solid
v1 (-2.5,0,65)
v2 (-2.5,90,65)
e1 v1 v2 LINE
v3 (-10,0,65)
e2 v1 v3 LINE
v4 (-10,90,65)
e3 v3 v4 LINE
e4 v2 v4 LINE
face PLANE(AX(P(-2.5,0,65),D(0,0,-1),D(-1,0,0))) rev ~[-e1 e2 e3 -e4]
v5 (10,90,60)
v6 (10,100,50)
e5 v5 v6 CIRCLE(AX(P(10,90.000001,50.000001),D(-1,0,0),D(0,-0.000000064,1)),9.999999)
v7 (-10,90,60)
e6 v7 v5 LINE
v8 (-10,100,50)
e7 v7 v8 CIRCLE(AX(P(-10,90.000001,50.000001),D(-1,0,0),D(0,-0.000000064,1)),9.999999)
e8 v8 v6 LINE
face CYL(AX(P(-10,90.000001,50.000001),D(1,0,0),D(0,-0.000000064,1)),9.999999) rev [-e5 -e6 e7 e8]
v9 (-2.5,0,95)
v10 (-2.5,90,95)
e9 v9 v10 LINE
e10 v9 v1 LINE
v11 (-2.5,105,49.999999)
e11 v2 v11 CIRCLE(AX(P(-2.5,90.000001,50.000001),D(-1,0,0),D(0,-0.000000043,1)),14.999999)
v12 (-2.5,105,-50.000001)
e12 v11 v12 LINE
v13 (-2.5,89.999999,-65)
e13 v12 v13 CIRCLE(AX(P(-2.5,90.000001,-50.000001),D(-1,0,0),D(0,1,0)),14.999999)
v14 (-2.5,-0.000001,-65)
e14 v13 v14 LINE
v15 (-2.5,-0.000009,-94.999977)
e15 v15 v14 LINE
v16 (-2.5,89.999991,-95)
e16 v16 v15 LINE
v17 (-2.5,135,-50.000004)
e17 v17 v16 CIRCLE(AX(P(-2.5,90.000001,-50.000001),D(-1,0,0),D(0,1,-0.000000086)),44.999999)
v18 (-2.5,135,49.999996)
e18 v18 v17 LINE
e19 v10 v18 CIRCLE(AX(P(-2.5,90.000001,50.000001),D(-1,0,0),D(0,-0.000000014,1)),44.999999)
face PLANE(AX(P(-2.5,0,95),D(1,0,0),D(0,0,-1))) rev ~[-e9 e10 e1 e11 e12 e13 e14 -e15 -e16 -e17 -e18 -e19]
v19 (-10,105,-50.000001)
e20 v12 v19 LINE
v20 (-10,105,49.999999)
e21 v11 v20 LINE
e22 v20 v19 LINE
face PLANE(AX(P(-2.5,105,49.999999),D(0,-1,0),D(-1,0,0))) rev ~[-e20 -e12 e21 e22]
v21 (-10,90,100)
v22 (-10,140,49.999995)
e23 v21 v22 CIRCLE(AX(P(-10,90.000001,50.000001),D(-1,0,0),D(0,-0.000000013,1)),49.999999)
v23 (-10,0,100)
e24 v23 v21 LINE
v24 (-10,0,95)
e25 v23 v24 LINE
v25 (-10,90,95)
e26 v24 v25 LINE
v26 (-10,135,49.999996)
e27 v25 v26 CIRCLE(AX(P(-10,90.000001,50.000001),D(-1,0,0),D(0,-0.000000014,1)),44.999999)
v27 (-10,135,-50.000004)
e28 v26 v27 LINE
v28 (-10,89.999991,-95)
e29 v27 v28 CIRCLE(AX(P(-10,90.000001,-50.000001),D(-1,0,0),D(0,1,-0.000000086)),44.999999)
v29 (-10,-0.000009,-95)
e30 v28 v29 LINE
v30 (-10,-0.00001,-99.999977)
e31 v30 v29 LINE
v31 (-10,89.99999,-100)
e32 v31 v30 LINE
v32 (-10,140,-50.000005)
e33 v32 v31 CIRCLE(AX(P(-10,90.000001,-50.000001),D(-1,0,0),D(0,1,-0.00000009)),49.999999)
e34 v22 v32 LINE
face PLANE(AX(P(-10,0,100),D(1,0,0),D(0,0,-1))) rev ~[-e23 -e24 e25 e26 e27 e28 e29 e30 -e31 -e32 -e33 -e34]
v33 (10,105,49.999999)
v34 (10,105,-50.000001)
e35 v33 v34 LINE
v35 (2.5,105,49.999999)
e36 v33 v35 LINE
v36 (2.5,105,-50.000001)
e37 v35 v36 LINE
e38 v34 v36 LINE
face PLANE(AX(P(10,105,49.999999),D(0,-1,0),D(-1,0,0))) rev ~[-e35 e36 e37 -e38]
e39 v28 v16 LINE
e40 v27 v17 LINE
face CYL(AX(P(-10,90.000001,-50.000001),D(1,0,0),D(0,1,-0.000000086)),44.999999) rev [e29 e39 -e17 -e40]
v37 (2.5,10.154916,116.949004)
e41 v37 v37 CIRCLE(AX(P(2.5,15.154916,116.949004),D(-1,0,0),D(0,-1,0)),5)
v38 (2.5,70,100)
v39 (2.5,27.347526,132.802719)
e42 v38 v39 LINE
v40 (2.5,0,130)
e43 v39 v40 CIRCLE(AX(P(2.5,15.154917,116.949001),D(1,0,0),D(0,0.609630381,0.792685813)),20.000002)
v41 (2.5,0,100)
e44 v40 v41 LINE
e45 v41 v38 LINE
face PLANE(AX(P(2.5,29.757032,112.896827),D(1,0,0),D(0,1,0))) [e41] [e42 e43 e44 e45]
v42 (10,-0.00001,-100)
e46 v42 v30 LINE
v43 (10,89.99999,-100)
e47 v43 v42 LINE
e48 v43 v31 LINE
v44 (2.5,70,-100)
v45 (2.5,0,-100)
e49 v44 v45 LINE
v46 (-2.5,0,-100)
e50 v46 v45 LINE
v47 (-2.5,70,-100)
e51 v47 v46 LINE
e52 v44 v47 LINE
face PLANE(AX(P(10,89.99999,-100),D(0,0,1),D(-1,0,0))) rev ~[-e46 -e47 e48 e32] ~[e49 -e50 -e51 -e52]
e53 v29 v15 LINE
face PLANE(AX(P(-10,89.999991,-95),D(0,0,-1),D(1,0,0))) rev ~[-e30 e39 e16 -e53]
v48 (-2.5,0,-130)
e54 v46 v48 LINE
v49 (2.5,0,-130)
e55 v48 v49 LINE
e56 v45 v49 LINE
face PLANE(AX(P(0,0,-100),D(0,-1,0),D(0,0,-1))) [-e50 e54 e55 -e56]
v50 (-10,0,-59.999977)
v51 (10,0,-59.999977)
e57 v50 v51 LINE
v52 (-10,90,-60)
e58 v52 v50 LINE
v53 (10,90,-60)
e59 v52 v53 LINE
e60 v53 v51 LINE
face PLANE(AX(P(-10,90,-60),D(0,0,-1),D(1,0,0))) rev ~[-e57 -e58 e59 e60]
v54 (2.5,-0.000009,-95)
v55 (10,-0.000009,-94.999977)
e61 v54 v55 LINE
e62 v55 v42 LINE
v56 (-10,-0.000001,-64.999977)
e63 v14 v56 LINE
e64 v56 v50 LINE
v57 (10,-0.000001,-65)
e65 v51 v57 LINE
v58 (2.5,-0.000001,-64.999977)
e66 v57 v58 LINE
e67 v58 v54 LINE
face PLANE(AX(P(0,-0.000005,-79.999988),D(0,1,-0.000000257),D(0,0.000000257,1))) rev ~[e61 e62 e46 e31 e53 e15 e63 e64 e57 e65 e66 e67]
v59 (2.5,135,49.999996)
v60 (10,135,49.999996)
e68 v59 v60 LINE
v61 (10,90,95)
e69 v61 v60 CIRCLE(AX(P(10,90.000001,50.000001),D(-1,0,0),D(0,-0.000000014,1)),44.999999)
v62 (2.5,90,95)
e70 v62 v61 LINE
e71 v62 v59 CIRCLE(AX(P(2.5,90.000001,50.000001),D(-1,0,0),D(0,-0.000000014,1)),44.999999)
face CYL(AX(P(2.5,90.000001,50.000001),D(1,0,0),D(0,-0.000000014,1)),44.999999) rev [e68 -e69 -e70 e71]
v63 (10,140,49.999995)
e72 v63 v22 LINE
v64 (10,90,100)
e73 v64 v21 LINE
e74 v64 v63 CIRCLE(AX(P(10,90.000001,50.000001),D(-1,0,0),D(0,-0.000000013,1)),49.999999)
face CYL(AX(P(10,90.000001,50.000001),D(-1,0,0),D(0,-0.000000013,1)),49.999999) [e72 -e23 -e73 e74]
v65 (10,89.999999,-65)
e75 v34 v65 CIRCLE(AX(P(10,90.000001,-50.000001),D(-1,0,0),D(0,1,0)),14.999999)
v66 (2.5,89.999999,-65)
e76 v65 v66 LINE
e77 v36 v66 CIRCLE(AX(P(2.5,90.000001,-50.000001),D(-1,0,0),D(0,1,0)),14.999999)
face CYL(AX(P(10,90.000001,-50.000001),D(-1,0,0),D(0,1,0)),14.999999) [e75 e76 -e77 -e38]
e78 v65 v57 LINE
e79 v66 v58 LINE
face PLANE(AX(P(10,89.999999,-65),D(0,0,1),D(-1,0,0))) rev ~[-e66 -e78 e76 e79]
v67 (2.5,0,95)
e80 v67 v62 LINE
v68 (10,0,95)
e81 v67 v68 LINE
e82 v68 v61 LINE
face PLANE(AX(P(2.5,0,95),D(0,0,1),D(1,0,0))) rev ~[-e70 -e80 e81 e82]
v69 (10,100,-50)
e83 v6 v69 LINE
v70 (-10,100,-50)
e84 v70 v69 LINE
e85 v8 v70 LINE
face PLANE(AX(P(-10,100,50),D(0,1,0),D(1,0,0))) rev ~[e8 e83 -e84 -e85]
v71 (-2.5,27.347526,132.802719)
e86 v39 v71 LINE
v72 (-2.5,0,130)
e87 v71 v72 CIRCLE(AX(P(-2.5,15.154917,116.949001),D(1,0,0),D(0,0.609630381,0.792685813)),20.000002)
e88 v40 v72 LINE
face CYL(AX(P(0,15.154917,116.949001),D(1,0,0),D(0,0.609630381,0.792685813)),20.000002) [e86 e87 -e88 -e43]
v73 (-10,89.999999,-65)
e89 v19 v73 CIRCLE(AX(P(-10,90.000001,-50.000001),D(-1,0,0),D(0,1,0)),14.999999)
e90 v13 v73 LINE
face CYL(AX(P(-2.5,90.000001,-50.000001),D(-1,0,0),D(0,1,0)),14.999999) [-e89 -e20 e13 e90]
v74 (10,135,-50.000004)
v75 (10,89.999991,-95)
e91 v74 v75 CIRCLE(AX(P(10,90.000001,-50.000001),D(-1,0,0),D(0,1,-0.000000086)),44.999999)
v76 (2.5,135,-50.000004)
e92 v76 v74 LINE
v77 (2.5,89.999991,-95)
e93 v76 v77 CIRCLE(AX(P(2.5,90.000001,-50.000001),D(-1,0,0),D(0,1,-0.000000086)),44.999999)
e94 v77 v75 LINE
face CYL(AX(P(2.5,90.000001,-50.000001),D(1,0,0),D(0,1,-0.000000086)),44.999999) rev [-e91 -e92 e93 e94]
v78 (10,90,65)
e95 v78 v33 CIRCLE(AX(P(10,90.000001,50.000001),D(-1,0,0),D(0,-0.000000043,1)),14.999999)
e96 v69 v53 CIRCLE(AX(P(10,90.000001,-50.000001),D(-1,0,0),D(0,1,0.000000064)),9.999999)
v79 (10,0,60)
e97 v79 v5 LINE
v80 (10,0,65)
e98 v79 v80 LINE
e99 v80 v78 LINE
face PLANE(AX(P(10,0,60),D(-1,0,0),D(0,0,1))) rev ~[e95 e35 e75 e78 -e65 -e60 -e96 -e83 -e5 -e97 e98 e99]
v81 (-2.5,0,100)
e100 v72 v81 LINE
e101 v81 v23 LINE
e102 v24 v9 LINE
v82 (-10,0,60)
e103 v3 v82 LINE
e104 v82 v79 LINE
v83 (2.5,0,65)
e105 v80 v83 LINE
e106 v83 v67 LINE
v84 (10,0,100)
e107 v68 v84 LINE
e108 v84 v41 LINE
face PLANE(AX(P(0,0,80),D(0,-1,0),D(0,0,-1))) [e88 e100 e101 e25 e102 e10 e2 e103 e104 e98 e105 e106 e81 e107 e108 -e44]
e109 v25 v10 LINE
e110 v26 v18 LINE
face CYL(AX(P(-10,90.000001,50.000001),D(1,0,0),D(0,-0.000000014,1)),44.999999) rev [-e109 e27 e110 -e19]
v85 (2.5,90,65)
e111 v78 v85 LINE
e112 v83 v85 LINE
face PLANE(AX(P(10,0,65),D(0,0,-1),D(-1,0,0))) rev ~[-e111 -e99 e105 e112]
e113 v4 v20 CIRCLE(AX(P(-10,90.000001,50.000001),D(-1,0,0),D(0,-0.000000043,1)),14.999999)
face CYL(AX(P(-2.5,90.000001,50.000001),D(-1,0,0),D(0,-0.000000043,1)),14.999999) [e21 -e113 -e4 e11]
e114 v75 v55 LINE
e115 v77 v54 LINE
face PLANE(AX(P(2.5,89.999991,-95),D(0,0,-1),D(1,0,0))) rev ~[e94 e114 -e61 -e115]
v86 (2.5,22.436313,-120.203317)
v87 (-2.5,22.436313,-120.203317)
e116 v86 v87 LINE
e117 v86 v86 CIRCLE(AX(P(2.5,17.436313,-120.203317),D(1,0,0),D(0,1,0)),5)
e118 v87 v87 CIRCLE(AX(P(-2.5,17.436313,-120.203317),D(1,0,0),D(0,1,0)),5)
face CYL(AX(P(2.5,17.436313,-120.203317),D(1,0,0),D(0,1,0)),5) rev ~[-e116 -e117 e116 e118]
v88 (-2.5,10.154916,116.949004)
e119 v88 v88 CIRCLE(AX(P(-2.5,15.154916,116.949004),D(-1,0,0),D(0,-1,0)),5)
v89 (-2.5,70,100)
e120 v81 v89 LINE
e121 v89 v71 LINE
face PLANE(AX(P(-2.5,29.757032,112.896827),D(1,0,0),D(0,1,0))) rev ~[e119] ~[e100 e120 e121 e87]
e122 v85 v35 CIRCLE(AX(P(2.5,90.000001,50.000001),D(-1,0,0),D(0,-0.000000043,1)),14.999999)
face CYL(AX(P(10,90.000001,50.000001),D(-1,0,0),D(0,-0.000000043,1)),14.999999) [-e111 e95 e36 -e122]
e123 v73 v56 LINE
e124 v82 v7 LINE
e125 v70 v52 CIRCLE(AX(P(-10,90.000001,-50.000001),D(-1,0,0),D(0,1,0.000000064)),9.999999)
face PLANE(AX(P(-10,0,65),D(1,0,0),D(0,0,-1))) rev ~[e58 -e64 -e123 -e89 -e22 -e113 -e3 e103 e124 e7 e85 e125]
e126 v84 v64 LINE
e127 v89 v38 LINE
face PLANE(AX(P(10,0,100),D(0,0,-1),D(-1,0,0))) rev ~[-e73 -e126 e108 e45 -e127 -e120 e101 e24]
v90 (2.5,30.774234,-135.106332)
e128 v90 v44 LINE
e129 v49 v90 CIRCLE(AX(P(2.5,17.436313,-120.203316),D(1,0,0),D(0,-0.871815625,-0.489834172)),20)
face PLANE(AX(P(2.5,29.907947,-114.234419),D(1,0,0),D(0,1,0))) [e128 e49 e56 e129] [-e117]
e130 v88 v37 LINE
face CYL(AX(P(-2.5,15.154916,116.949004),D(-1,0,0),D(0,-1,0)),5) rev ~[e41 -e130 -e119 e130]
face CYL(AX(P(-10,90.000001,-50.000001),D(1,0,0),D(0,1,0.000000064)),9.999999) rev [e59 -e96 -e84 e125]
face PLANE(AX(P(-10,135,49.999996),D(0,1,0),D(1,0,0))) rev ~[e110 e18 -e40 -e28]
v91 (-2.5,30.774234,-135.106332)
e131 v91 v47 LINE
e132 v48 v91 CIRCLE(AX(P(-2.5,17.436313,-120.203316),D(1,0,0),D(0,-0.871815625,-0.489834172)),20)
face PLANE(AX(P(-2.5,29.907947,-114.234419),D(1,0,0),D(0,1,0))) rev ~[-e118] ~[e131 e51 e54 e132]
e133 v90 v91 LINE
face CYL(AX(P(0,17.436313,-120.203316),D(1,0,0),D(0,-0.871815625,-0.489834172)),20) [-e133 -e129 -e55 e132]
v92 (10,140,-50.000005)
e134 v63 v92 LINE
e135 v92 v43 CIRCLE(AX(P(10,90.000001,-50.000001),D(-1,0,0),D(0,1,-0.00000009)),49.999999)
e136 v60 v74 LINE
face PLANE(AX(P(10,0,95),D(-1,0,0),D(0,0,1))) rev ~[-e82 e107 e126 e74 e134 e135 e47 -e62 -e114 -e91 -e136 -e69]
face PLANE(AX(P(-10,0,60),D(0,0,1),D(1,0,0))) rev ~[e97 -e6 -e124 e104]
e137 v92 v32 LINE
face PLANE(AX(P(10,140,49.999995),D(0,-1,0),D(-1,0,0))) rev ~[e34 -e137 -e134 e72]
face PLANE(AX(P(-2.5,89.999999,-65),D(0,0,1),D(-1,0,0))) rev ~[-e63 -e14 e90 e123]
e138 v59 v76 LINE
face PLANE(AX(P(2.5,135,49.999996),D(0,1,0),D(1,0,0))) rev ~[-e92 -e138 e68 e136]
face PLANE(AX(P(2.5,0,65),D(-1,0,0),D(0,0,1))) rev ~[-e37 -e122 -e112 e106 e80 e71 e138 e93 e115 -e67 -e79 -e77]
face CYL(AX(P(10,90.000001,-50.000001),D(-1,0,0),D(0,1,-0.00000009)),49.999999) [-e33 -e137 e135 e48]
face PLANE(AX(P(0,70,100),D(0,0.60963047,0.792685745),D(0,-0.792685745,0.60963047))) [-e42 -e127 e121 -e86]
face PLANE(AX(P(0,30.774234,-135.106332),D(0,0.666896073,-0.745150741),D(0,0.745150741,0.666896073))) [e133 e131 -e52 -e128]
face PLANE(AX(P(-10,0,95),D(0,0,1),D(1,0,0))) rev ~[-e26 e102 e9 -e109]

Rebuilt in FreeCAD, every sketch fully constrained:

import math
import FreeCAD as App
import Part
import Sketcher
from FreeCAD import Vector
Q = App.Units.Quantity


def add_polygon(sketch, points):
    """Adds a closed chain of lines whose ends are joined by coincident constraints."""
    first, n = sketch.GeometryCount, len(points)
    for a, b in zip(points, points[1:] + points[:1]):
        sketch.addGeometry(Part.LineSegment(App.Vector(*a, 0), App.Vector(*b, 0)), False)
    for i in range(n):
        sketch.addConstraint(Sketcher.Constraint("Coincident", first + i, 2, first + (i + 1) % n, 1))

doc = App.newDocument("Part")
body = doc.addObject("PartDesign::Body", "Body")

sketch1 = doc.addObject("Sketcher::SketchObject", "Sketch")
body.addObject(sketch1)
sketch1.AttachmentSupport = (doc.XZ_Plane, [""])
sketch1.MapMode = "FlatFace"
add_polygon(sketch1, [(-10, 60), (10, 60), (10, 65), (2, 65), (2, 95), (10, 95), (10, 100), (-10, 100), (-10, 95), (-2, 95), (-2, 65), (-10, 65)])
sketch1.addConstraint([
    Sketcher.Constraint("Horizontal", 0),
    Sketcher.Constraint("Vertical", 1),
    Sketcher.Constraint("Horizontal", 2),
    Sketcher.Constraint("Vertical", 3),
    Sketcher.Constraint("Horizontal", 4),
    Sketcher.Constraint("Vertical", 5),
    Sketcher.Constraint("Horizontal", 6),
    Sketcher.Constraint("Vertical", 7),
    Sketcher.Constraint("Horizontal", 8),
    Sketcher.Constraint("Vertical", 9),
    Sketcher.Constraint("Horizontal", 10),
    Sketcher.Constraint("Vertical", 11),
    Sketcher.Constraint("Symmetric", 4, 2, 7, 2, -2),
    Sketcher.Constraint("Symmetric", 2, 2, 9, 2, -2),
    Sketcher.Constraint("Vertical", 1, 2, 4, 2),
    Sketcher.Constraint("Vertical", 7, 2, 10, 2),
    Sketcher.Constraint("Equal", 1, 5),
    Sketcher.Constraint("DistanceX", 0, 1, 0, 2, Q("20 mm")),
    Sketcher.Constraint("DistanceY", 1, 1, 1, 2, Q("5 mm")),
    Sketcher.Constraint("DistanceY", 3, 1, 3, 2, Q("30 mm")),
    Sketcher.Constraint("DistanceX", 2, 2, 2, 1, Q("7.5 mm")),
    Sketcher.Constraint("DistanceY", -1, 1, 0, 2, Q("60 mm")),
])

sketch2 = doc.addObject("Sketcher::SketchObject", "Sketch001")
body.addObject(sketch2)
sketch2.AttachmentSupport = (doc.YZ_Plane, [""])
sketch2.MapMode = "FlatFace"
sketch2.addGeometry([
    Part.LineSegment(Vector(0, 60, 0), Vector(90, 60, 0)),
    Part.ArcOfCircle(Part.Circle(Vector(90, 50, 0), Vector(0, 0, 1), 10), math.radians(0), math.radians(90)),
    Part.LineSegment(Vector(100, 50, 0), Vector(100, -50, 0)),
    Part.ArcOfCircle(Part.Circle(Vector(90, -50, 0), Vector(0, 0, 1), 10), math.radians(-90), math.radians(0)),
    Part.LineSegment(Vector(90, -60, 0), Vector(0, -60, 0)),
], False)
sketch2.addConstraint([
    Sketcher.Constraint("Tangent", 0, 2, 1, 2),
    Sketcher.Constraint("Tangent", 1, 1, 2, 1),
    Sketcher.Constraint("Tangent", 2, 2, 3, 2),
    Sketcher.Constraint("Tangent", 3, 1, 4, 1),
    Sketcher.Constraint("Horizontal", 0),
    Sketcher.Constraint("Vertical", 2),
    Sketcher.Constraint("Horizontal", 4),
    Sketcher.Constraint("Equal", 1, 3),
    Sketcher.Constraint("Symmetric", 0, 1, 4, 2, -1, 1),
    Sketcher.Constraint("PointOnObject", 0, 1, -2),
    Sketcher.Constraint("Radius", 1, Q("9.999999 mm")),
    Sketcher.Constraint("DistanceX", 0, 1, 0, 2, Q("90 mm")),
    Sketcher.Constraint("DistanceY", 2, 2, 2, 1, Q("100 mm")),
])
doc.recompute()

additivepipe = doc.addObject("PartDesign::AdditivePipe", "AdditivePipe")
body.addObject(additivepipe)
additivepipe.Profile = sketch1
additivepipe.Spine = (sketch2, ["Edge1", "Edge2", "Edge3", "Edge4", "Edge5"])

sketch3 = doc.addObject("Sketcher::SketchObject", "Sketch002")
body.addObject(sketch3)
sketch3.AttachmentSupport = (doc.YZ_Plane, [""])
sketch3.MapMode = "FlatFace"
sketch3.addGeometry([
    Part.LineSegment(Vector(0, 130, 0), Vector(0, 100, 0)),
    Part.LineSegment(Vector(0, 100, 0), Vector(70, 100, 0)),
    Part.LineSegment(Vector(70, 100, 0), Vector(27, 133, 0)),
    Part.ArcOfCircle(Part.Circle(Vector(15, 117, 0), Vector(0, 0, 1), 20), math.radians(52), math.radians(139)),
], False)
sketch3.addConstraint([
    Sketcher.Constraint("Coincident", 0, 2, 1, 1),
    Sketcher.Constraint("Coincident", 1, 2, 2, 1),
    Sketcher.Constraint("Tangent", 2, 2, 3, 1),
    Sketcher.Constraint("Coincident", 3, 2, 0, 1),
    Sketcher.Constraint("Vertical", 0),
    Sketcher.Constraint("Horizontal", 1),
    Sketcher.Constraint("PointOnObject", 0, 2, -2),
    Sketcher.Constraint("DistanceX", 1, 1, 1, 2, Q("70 mm")),
    Sketcher.Constraint("DistanceY", 0, 2, 0, 1, Q("30 mm")),
    Sketcher.Constraint("DistanceY", -1, 1, 0, 2, Q("100 mm")),
    Sketcher.Constraint("DistanceY", -1, 1, 3, 3, Q("116.949001 mm")),
    Sketcher.Constraint("Radius", 3, Q("20.000002 mm")),
])
pad1 = doc.addObject("PartDesign::Pad", "Pad")
body.addObject(pad1)
pad1.Profile = sketch3
pad1.Length = 5
pad1.Midplane = True

sketch4 = doc.addObject("Sketcher::SketchObject", "Sketch003")
body.addObject(sketch4)
sketch4.AttachmentSupport = (doc.YZ_Plane, [""])
sketch4.MapMode = "FlatFace"
sketch4.AttachmentOffset = App.Placement(Vector(0, 0, -2.5), App.Rotation())
sketch4.addGeometry(Part.Circle(Vector(15, 117, 0), Vector(0, 0, 1), 5), False)
sketch4.addConstraint([
    Sketcher.Constraint("Diameter", 0, Q("10 mm")),
    Sketcher.Constraint("DistanceX", -1, 1, 0, 3, Q("15.154916 mm")),
    Sketcher.Constraint("DistanceY", -1, 1, 0, 3, Q("116.949004 mm")),
])
pocket1 = doc.addObject("PartDesign::Pocket", "Pocket")
body.addObject(pocket1)
pocket1.Profile = sketch4
pocket1.Length = 25.4
pocket1.Reversed = True

sketch5 = doc.addObject("Sketcher::SketchObject", "Sketch004")
body.addObject(sketch5)
sketch5.AttachmentSupport = (doc.YZ_Plane, [""])
sketch5.MapMode = "FlatFace"
sketch5.addGeometry([
    Part.LineSegment(Vector(70, -100, 0), Vector(0, -100, 0)),
    Part.LineSegment(Vector(0, -100, 0), Vector(0, -130, 0)),
    Part.ArcOfCircle(Part.Circle(Vector(17, -120, 0), Vector(0, 0, 1), 20), math.radians(-151), math.radians(-48)),
    Part.LineSegment(Vector(31, -135, 0), Vector(70, -100, 0)),
], False)
sketch5.addConstraint([
    Sketcher.Constraint("Coincident", 0, 2, 1, 1),
    Sketcher.Constraint("Coincident", 1, 2, 2, 1),
    Sketcher.Constraint("Tangent", 2, 2, 3, 1),
    Sketcher.Constraint("Coincident", 3, 2, 0, 1),
    Sketcher.Constraint("Horizontal", 0),
    Sketcher.Constraint("Vertical", 1),
    Sketcher.Constraint("PointOnObject", 0, 2, -2),
    Sketcher.Constraint("Radius", 2, Q("20 mm")),
    Sketcher.Constraint("DistanceX", 0, 2, 0, 1, Q("70 mm")),
    Sketcher.Constraint("DistanceY", 1, 2, 1, 1, Q("30 mm")),
    Sketcher.Constraint("DistanceY", 0, 2, -1, 1, Q("100 mm")),
    Sketcher.Constraint("DistanceX", 2, 3, 2, 2, Q("13.337921 mm")),
])
pad2 = doc.addObject("PartDesign::Pad", "Pad001")
body.addObject(pad2)
pad2.Profile = sketch5
pad2.Length = 5
pad2.Midplane = True

sketch6 = doc.addObject("Sketcher::SketchObject", "Sketch005")
body.addObject(sketch6)
sketch6.AttachmentSupport = (doc.YZ_Plane, [""])
sketch6.MapMode = "FlatFace"
sketch6.AttachmentOffset = App.Placement(Vector(0, 0, 2.5), App.Rotation())
sketch6.addGeometry(Part.Circle(Vector(17, -120, 0), Vector(0, 0, 1), 5), False)
sketch6.addConstraint([
    Sketcher.Constraint("Diameter", 0, Q("10 mm")),
    Sketcher.Constraint("DistanceX", -1, 1, 0, 3, Q("17.436313 mm")),
    Sketcher.Constraint("DistanceY", 0, 3, -1, 1, Q("120.203317 mm")),
])
pocket2 = doc.addObject("PartDesign::Pocket", "Pocket001")
body.addObject(pocket2)
pocket2.Profile = sketch6
pocket2.Length = 25.4

doc.recompute()
